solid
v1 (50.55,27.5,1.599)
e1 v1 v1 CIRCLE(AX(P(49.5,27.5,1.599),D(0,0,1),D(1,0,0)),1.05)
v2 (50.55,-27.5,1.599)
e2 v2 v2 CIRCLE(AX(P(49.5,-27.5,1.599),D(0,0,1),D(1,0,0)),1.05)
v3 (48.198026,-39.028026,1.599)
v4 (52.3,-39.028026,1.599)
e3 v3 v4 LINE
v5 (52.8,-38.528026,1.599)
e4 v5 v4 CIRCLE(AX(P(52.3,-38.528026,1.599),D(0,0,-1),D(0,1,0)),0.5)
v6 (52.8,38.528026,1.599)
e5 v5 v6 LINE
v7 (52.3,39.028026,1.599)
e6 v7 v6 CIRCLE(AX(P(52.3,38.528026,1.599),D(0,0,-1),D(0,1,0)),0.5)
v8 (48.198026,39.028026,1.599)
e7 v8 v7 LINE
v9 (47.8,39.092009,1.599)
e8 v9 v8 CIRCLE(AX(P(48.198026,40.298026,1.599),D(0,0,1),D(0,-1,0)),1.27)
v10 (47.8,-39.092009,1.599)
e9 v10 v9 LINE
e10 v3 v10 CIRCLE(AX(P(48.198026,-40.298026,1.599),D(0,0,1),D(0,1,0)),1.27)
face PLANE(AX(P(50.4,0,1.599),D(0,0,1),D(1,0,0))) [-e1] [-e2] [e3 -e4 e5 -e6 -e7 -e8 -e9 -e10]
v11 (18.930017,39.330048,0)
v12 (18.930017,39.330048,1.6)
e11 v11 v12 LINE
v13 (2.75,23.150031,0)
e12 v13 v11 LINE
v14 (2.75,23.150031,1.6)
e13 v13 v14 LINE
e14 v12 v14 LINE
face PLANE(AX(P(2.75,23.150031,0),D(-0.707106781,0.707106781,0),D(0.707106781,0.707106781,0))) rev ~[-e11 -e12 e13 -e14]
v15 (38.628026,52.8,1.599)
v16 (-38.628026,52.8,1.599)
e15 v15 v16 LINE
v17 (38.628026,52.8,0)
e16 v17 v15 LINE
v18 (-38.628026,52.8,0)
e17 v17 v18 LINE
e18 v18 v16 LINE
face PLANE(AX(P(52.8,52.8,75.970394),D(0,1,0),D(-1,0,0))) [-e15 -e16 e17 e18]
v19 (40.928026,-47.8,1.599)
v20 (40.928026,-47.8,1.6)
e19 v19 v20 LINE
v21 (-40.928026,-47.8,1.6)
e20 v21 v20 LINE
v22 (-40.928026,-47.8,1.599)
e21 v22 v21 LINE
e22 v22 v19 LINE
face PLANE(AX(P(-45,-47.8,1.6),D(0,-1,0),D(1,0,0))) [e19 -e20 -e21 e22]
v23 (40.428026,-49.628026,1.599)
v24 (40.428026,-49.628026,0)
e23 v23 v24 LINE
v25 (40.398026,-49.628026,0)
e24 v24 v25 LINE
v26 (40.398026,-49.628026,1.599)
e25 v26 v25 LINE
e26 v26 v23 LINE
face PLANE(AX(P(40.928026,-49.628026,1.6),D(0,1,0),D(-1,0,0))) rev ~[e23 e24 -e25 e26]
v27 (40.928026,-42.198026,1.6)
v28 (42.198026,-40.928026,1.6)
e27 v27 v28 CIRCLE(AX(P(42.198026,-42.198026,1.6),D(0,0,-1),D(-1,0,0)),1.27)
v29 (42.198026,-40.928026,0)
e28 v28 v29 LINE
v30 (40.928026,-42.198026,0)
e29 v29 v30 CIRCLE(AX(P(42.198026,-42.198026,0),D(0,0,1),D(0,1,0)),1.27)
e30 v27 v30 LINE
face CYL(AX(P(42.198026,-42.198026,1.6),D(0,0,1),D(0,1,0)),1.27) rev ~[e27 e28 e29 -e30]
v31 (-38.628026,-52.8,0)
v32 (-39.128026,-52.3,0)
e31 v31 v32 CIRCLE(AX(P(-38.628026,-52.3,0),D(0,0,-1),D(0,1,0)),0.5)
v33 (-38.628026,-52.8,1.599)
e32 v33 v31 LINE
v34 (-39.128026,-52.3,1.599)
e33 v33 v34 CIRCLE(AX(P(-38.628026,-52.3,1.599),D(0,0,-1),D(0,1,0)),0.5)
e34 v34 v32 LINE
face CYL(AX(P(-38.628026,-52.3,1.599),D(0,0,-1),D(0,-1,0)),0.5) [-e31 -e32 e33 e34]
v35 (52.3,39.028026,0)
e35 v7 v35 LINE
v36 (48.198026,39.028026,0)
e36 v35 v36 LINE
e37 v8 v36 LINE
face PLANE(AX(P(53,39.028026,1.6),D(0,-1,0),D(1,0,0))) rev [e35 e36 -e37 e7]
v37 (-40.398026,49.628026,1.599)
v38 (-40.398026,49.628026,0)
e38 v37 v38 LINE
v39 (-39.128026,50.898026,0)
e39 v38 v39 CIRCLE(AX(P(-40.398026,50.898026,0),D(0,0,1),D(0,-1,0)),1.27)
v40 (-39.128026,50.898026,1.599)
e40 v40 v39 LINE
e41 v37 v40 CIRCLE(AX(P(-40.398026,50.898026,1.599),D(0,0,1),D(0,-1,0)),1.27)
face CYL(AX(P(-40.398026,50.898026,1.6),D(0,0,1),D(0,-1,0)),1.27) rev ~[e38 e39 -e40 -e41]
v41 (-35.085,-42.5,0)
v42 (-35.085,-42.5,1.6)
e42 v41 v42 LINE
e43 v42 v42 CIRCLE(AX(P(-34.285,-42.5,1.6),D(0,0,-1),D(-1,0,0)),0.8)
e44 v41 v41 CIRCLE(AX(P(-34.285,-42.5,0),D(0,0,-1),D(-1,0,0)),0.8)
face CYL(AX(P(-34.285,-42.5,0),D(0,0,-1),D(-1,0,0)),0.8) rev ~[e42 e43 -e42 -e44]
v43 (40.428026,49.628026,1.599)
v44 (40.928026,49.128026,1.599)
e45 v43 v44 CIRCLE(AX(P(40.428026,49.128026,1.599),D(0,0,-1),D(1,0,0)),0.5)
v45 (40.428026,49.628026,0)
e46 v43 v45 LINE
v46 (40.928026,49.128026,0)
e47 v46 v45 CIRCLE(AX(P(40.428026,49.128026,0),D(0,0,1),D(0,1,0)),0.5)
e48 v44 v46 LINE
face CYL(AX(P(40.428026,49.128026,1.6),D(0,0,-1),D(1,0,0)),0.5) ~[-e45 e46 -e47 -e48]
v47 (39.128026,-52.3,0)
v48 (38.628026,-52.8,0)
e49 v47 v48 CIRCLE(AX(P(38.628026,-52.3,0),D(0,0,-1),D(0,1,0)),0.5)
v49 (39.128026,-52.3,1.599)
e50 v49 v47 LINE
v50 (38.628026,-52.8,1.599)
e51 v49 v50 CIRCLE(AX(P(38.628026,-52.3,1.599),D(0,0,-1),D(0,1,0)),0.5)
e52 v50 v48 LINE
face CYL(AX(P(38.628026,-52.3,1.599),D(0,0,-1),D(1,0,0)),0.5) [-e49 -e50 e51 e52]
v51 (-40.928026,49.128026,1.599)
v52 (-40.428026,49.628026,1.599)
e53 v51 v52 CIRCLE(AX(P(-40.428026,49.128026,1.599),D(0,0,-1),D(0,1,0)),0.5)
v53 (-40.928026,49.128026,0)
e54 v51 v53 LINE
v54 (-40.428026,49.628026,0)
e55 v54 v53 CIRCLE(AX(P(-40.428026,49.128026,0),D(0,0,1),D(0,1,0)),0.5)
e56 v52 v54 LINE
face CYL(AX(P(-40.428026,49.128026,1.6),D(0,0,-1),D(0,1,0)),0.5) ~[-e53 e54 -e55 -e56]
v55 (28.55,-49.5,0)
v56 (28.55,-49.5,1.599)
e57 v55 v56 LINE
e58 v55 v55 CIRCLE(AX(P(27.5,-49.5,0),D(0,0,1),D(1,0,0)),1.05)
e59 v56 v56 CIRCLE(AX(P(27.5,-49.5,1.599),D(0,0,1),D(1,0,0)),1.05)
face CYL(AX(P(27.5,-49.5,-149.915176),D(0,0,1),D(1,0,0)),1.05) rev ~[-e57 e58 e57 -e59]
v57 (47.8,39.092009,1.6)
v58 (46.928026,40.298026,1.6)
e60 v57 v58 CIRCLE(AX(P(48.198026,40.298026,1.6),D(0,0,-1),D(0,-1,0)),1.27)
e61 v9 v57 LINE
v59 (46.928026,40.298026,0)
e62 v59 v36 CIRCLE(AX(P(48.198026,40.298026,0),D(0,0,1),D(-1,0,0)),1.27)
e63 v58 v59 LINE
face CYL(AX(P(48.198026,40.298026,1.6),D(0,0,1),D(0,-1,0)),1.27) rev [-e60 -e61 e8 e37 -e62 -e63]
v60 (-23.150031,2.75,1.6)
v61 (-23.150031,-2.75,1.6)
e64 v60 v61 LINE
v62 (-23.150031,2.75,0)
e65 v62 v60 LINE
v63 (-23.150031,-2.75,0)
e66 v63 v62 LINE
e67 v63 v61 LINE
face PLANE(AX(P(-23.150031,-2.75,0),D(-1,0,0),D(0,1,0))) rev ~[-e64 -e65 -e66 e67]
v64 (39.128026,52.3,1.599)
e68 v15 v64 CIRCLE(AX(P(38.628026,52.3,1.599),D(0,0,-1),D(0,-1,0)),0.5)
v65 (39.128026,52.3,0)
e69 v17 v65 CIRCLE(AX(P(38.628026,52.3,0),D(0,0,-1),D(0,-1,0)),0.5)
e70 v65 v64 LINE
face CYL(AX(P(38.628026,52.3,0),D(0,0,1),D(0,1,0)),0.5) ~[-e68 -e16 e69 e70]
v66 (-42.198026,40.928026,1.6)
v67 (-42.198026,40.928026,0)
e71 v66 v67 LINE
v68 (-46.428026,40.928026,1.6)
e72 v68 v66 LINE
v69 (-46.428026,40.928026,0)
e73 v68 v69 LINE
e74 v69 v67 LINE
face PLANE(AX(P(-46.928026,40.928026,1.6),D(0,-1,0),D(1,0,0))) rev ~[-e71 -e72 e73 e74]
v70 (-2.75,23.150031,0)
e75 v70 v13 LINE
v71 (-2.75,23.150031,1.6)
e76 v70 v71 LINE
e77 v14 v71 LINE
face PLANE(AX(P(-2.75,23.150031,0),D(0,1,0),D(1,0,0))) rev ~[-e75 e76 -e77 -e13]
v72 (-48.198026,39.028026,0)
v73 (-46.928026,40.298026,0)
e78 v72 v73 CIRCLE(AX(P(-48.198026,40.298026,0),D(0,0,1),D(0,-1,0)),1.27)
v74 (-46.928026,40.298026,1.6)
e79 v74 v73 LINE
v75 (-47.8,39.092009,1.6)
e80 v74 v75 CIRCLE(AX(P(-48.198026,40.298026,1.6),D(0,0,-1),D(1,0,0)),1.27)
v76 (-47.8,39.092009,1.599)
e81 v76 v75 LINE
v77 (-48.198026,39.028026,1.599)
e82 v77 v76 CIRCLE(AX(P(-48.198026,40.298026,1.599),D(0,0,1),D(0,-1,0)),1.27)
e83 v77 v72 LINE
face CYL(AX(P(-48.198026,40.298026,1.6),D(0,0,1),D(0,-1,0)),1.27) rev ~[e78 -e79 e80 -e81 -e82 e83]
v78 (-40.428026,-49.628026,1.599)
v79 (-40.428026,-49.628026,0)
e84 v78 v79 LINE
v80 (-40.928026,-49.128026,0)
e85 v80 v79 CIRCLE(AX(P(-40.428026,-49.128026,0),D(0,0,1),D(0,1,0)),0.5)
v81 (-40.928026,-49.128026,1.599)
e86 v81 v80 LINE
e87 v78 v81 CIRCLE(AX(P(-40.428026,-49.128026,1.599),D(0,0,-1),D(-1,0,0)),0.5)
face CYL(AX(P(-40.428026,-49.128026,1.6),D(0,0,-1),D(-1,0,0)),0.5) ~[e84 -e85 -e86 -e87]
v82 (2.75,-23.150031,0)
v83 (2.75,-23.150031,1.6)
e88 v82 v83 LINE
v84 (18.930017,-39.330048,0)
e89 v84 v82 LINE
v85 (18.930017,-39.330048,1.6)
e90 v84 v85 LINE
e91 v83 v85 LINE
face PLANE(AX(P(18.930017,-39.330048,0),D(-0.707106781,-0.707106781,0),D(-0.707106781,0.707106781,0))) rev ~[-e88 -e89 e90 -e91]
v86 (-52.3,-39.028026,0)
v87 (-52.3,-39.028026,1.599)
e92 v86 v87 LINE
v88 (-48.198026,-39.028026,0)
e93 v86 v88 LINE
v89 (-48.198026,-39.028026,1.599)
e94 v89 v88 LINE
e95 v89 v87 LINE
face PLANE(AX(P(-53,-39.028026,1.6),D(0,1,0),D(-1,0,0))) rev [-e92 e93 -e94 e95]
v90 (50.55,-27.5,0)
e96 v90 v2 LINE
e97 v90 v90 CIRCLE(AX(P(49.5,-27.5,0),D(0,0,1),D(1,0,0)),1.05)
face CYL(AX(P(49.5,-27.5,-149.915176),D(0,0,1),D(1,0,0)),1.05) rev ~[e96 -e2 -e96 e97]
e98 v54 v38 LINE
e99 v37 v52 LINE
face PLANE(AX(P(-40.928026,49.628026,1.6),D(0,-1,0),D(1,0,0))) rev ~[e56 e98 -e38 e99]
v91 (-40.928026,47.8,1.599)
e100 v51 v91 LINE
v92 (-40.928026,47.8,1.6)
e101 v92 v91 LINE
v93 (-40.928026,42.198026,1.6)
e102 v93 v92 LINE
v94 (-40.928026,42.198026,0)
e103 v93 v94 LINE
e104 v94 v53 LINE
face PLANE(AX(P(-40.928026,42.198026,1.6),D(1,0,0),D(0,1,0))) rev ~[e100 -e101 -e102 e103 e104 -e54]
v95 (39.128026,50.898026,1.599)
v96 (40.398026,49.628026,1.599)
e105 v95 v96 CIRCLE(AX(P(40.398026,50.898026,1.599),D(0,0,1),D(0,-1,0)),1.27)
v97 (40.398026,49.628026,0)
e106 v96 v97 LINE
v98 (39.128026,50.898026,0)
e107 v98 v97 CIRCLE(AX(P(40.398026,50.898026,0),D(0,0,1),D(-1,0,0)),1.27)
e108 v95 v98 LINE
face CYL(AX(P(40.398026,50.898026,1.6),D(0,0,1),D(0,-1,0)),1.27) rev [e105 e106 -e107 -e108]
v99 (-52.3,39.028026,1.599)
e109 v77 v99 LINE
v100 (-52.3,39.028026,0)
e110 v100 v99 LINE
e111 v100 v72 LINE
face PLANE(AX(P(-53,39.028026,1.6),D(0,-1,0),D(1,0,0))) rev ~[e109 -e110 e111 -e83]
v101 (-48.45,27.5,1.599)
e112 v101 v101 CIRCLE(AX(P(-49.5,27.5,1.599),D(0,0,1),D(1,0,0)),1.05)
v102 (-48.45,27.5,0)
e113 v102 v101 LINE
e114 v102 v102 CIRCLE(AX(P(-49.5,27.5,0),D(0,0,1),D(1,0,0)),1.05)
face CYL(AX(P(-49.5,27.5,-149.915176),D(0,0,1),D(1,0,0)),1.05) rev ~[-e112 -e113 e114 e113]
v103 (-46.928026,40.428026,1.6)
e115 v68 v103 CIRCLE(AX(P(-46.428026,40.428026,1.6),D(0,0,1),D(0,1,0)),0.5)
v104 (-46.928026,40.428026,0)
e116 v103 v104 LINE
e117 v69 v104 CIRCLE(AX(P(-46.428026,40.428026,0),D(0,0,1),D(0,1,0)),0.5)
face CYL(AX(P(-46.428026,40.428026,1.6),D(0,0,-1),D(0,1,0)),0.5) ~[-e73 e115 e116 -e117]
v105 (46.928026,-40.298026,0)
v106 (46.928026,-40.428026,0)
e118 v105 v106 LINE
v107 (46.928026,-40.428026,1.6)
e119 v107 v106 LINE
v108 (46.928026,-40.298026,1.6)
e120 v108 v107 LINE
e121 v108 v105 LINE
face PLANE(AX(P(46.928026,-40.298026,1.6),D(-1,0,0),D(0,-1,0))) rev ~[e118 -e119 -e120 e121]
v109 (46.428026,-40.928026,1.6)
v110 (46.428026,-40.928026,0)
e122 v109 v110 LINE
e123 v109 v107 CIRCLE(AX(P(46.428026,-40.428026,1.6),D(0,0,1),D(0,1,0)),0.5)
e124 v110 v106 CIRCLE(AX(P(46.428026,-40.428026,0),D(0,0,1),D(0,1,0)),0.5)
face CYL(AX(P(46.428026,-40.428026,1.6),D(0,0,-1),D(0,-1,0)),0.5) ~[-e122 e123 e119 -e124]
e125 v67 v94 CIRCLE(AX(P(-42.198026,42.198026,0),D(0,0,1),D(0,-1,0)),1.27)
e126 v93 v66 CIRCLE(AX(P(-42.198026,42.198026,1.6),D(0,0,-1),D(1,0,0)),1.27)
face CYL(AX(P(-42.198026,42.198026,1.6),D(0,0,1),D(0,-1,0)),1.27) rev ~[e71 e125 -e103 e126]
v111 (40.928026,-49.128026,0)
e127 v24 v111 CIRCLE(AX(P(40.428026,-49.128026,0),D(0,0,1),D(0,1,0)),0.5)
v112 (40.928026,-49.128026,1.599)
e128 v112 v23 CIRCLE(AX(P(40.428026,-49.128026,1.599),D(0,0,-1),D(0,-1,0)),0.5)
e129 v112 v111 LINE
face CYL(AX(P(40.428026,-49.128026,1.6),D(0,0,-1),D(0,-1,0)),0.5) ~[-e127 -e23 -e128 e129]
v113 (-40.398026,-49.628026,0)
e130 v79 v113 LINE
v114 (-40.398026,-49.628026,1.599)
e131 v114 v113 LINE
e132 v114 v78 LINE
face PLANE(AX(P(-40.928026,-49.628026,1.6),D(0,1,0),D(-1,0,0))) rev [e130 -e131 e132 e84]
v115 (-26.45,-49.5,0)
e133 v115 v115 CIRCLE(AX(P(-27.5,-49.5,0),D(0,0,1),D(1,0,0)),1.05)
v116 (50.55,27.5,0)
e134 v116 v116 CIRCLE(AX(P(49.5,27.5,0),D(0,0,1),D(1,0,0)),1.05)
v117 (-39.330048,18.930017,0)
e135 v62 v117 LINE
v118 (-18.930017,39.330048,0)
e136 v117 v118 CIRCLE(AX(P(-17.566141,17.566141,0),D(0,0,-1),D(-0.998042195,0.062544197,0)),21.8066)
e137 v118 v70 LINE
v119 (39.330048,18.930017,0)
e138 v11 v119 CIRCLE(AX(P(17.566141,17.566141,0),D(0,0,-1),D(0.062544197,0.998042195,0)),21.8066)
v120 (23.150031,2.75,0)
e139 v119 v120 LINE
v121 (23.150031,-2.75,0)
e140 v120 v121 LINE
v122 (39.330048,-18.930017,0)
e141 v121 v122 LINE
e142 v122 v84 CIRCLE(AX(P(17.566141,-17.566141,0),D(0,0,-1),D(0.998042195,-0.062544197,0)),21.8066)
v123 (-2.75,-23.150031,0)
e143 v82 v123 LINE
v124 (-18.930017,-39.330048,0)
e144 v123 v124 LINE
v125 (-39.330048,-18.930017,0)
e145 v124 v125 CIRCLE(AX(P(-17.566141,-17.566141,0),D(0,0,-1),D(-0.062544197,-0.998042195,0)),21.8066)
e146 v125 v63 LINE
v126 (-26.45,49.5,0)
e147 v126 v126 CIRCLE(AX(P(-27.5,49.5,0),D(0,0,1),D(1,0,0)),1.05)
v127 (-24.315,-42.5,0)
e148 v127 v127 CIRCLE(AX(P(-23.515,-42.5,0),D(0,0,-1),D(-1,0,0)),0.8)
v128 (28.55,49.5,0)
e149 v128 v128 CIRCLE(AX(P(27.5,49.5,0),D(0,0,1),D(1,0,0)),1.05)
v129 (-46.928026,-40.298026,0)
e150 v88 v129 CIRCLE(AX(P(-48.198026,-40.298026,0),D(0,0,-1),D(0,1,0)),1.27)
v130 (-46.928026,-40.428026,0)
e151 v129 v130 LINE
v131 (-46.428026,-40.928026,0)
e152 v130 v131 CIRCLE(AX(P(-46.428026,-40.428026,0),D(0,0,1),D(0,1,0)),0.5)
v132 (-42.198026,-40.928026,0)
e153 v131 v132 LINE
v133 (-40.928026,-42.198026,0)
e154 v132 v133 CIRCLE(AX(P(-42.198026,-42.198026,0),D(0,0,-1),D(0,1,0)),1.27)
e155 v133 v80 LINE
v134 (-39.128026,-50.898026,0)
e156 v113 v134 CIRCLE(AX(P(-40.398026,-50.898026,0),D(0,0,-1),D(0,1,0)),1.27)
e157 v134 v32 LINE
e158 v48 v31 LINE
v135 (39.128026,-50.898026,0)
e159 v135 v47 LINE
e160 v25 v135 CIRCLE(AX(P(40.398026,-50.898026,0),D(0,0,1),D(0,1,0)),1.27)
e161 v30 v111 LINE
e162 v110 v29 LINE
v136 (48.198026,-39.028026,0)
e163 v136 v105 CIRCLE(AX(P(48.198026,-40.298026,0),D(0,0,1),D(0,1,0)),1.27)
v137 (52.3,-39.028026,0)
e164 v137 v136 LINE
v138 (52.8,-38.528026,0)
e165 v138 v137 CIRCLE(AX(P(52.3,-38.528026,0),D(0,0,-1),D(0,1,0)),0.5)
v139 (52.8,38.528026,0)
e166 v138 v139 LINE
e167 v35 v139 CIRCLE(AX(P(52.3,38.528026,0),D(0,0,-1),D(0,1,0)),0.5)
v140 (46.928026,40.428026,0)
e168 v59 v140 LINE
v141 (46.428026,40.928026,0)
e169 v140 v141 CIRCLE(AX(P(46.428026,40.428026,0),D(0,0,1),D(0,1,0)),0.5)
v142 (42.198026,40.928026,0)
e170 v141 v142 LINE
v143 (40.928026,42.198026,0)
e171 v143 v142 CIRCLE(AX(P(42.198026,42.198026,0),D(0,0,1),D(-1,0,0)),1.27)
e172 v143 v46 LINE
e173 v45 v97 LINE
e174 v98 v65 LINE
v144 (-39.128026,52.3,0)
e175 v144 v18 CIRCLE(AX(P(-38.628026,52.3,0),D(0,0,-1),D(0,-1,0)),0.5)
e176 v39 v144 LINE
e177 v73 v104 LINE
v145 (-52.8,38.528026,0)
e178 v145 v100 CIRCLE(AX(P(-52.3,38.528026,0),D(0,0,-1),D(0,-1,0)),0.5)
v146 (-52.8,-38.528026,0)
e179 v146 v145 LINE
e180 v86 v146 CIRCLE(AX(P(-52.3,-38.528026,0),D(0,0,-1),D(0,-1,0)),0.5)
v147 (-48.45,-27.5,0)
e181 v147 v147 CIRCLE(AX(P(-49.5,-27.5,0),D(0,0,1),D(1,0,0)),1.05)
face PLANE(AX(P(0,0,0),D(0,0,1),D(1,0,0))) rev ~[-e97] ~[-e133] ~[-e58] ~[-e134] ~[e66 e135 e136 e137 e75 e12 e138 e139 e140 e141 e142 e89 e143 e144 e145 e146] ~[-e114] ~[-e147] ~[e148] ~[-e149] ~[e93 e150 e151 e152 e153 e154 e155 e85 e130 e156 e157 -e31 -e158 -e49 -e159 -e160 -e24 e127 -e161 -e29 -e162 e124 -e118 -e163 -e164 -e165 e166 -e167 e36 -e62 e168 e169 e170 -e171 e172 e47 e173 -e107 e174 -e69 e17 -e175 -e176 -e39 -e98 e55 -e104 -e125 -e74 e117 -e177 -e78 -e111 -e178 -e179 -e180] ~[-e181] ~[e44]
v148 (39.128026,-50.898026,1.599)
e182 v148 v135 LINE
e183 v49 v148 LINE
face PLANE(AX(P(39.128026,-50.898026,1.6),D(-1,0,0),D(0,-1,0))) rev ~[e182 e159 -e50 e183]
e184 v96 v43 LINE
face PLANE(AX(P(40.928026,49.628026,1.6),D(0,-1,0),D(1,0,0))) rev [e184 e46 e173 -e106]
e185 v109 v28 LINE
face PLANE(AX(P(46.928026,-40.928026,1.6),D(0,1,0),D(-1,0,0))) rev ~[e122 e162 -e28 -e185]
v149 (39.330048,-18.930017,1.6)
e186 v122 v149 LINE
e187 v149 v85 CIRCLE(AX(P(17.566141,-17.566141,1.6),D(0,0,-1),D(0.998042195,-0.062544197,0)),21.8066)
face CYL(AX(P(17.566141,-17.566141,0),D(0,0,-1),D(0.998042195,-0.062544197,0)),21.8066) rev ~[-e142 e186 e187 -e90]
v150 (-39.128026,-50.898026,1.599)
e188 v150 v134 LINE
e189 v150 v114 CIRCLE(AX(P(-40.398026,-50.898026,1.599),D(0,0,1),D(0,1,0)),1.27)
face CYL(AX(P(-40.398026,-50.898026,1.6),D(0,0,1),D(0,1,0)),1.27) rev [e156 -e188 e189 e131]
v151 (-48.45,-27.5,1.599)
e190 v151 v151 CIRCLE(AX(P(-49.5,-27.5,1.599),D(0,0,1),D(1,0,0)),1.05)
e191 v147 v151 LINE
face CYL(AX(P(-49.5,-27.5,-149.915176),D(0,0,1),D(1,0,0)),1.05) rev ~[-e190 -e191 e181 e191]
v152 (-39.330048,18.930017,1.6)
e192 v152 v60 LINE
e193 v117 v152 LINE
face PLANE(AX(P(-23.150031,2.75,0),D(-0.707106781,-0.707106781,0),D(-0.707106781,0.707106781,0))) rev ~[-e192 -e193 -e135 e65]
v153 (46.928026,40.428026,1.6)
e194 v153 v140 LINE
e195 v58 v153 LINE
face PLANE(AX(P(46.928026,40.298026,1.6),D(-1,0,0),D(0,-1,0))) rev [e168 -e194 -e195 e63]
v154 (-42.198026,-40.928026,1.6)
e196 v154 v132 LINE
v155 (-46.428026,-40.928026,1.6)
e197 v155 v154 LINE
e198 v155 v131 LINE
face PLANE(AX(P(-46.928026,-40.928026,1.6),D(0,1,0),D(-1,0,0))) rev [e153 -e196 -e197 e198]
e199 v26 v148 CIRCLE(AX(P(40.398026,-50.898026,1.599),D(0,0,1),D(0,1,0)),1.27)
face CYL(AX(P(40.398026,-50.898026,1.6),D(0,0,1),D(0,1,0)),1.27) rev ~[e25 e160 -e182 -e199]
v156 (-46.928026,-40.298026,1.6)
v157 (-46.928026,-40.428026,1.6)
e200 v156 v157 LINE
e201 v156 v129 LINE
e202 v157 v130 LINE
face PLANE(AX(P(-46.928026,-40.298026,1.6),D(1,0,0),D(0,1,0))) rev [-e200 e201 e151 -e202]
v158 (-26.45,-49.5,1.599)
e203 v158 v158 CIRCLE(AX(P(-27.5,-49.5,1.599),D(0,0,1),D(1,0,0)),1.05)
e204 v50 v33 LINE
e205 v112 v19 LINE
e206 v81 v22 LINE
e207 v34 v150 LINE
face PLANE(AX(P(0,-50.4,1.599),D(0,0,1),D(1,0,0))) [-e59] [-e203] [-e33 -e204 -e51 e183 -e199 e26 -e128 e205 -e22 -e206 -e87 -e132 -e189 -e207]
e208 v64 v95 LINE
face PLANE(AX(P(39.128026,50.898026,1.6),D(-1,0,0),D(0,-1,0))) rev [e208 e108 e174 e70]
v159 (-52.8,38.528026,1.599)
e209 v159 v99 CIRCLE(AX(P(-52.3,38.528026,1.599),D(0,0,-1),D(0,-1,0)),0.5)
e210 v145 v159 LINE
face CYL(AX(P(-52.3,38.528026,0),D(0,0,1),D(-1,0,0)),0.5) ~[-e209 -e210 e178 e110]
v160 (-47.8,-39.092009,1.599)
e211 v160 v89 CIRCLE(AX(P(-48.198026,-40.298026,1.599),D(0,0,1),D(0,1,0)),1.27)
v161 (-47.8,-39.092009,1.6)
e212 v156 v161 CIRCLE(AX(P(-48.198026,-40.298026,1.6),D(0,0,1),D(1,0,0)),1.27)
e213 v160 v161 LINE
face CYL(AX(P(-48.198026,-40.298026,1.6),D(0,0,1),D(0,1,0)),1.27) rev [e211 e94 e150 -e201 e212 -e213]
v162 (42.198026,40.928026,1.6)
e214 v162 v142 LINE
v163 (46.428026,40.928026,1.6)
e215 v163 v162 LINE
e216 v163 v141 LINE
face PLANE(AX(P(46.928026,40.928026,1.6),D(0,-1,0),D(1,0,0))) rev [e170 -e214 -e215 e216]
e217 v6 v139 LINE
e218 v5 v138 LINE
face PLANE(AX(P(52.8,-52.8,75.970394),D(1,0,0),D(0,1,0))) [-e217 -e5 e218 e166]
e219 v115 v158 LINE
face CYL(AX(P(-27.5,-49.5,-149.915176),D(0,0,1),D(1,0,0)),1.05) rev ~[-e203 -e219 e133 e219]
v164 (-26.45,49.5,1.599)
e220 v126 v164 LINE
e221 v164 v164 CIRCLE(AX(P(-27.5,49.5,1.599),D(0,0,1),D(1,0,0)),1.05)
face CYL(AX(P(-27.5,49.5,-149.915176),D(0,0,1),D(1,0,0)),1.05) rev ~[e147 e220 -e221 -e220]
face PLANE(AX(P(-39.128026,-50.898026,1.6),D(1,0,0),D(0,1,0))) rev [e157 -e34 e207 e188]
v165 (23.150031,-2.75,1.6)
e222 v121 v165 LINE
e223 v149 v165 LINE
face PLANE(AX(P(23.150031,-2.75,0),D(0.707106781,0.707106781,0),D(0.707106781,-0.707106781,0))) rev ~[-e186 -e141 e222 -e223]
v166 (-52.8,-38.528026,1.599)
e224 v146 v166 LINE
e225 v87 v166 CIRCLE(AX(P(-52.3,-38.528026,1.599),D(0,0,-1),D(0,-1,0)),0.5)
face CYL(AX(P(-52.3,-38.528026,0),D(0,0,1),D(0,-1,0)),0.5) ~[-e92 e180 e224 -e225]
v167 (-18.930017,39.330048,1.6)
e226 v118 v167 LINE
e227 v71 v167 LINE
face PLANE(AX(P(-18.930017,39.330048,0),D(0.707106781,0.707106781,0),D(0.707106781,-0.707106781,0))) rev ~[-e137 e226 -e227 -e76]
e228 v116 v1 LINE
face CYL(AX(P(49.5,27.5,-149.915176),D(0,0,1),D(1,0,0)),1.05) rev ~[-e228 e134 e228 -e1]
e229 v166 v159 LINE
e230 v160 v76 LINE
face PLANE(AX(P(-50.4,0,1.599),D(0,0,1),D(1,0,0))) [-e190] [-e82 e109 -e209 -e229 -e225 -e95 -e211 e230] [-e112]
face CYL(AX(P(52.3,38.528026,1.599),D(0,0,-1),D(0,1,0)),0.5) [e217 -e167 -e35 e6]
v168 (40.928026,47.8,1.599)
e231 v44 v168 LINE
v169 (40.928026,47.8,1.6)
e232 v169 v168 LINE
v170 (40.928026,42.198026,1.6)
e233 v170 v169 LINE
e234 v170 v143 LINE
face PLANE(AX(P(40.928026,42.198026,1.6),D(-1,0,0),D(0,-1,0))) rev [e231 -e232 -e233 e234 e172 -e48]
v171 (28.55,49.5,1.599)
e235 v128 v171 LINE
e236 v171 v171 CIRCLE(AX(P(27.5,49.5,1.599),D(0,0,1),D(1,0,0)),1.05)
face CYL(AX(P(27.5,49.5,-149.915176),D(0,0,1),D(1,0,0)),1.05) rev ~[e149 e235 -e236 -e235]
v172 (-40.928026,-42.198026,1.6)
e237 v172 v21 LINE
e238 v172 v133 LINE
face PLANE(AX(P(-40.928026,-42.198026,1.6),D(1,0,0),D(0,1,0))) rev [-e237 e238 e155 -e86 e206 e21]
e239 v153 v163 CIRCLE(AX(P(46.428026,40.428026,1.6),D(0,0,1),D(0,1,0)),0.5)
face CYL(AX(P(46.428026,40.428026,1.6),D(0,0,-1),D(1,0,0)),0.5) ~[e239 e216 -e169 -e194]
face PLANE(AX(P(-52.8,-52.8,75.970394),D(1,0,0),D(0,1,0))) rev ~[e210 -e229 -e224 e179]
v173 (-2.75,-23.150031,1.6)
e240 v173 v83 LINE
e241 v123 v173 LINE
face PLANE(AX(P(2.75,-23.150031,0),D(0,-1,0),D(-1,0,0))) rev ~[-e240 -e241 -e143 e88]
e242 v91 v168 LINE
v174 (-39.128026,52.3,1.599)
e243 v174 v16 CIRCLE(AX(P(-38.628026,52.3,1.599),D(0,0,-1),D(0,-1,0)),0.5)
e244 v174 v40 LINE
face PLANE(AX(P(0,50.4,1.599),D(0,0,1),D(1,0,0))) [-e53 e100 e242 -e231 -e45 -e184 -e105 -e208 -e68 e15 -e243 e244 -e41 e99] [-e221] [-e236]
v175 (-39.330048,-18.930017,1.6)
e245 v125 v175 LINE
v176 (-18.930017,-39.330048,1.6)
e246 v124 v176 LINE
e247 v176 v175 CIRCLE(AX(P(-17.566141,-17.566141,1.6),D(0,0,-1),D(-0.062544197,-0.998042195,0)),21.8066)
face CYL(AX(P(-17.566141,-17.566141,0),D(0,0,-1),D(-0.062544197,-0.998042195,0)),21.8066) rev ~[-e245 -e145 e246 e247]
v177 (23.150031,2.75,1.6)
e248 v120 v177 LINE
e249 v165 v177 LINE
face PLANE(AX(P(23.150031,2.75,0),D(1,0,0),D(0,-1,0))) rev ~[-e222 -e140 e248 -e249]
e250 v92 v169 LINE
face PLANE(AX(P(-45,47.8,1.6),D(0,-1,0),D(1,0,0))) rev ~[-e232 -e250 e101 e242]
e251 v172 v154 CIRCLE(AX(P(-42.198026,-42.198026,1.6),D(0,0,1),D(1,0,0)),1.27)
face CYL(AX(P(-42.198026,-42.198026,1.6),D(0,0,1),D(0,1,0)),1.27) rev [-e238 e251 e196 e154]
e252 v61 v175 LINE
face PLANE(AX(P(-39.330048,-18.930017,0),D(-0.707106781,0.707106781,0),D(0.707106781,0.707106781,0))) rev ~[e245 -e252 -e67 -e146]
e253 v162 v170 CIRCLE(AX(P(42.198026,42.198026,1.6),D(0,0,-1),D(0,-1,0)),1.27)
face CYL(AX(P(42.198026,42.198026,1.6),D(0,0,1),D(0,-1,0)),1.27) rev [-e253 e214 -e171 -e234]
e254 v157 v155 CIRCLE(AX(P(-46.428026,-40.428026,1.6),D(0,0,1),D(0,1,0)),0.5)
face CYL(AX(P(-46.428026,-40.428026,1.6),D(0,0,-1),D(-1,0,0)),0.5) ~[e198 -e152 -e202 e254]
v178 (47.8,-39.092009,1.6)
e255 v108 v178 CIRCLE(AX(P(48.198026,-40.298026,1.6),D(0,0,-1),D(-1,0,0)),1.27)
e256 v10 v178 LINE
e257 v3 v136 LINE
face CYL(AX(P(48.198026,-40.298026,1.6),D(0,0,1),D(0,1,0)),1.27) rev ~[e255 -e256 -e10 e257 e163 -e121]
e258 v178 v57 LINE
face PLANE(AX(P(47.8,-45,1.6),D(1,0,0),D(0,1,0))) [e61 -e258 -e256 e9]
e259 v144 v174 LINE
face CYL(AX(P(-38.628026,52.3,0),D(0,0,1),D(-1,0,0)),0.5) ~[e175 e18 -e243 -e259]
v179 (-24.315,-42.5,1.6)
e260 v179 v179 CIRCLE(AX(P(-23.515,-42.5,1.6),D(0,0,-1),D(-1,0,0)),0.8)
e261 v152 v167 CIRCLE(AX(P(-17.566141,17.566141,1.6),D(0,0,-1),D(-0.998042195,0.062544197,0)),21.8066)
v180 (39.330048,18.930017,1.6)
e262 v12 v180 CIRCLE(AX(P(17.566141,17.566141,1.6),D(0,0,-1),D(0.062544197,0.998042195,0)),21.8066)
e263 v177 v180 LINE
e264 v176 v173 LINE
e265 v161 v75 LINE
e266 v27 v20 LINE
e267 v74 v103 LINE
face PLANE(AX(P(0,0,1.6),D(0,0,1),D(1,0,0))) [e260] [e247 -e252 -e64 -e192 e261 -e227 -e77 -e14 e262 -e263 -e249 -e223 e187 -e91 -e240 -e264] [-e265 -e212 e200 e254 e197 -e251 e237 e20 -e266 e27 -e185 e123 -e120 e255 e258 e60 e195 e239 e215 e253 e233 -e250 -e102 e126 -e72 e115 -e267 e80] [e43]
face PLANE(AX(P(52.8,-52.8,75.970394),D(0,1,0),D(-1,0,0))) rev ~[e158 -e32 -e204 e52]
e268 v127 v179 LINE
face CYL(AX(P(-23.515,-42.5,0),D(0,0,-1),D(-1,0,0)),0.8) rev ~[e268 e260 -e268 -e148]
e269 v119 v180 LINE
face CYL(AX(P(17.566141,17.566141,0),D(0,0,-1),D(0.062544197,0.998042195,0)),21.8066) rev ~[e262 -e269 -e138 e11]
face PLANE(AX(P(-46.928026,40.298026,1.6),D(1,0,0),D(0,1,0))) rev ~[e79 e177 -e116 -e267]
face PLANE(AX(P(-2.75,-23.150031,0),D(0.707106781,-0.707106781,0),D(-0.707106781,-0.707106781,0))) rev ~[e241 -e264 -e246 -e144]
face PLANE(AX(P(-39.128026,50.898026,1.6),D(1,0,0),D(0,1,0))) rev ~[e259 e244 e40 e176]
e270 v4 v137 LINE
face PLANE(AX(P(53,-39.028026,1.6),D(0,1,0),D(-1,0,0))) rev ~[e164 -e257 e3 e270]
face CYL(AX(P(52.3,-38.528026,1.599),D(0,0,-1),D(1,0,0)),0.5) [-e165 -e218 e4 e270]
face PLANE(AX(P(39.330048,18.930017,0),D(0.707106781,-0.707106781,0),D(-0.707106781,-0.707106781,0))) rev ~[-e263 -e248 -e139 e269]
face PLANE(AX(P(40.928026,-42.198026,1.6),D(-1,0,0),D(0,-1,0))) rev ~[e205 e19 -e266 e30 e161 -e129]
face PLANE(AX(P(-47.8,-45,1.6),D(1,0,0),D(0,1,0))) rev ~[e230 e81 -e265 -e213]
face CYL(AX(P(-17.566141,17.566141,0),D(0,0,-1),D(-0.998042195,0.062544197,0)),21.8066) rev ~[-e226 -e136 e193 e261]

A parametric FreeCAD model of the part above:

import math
import FreeCAD as App
import Part
import Sketcher

V = App.Vector
Q = App.Units.Quantity


def edges_at(feature, points):
    """Names of the edges that pass closest to the given points."""
    edges = feature.Shape.Edges
    near = lambda p: min(range(len(edges)), key=lambda i: edges[i].distToShape(Part.Vertex(*p))[0])
    return sorted({f"Edge{near(p) + 1}" for p in points})


def add_polygon(sketch, points):
    """Adds a closed chain of lines whose ends are joined by coincident constraints."""
    first, n = sketch.GeometryCount, len(points)
    for a, b in zip(points, points[1:] + points[:1]):
        sketch.addGeometry(Part.LineSegment(App.Vector(*a, 0), App.Vector(*b, 0)), False)
    for i in range(n):
        sketch.addConstraint(Sketcher.Constraint("Coincident", first + i, 2, first + (i + 1) % n, 1))

doc = App.newDocument("Part")
body = doc.addObject("PartDesign::Body", "Body")

sketch1 = body.newObject("Sketcher::SketchObject", "Sketch")
sketch1.AttachmentSupport = (doc.getObject("XY_Plane"), [""])
sketch1.MapMode = "FlatFace"
add_polygon(sketch1, [(-53, 53), (-53, -53), (53, -53), (53, 53)])
sketch1.addConstraint([
    Sketcher.Constraint("Vertical", 0),
    Sketcher.Constraint("Horizontal", 1),
    Sketcher.Constraint("Vertical", 2),
    Sketcher.Constraint("Horizontal", 3),
    Sketcher.Constraint("Symmetric", 0, 2, 2, 2, -1, 1),
    Sketcher.Constraint("Equal", 3, 0),
    Sketcher.Constraint("DistanceX", 1, 1, 1, 2, Q("106 mm")),
])
pad1 = body.newObject("PartDesign::Pad", "Pad")
pad1.Profile = sketch1
pad1.Length = 1.6

sketch2 = body.newObject("Sketcher::SketchObject", "Sketch001")
sketch2.AttachmentSupport = (doc.getObject("XY_Plane"), [""])
sketch2.MapMode = "FlatFace"
add_polygon(sketch2, [(-41, 53), (-41, 41), (-53, 41), (-53, 53)])
sketch2.addConstraint([
    Sketcher.Constraint("Vertical", 0),
    Sketcher.Constraint("Horizontal", 1),
    Sketcher.Constraint("Vertical", 2),
    Sketcher.Constraint("Horizontal", 3),
    Sketcher.Constraint("Equal", 3, 0),
    Sketcher.Constraint("DistanceX", 1, 2, 1, 1, Q("11.7 mm")),
    Sketcher.Constraint("DistanceX", 1, 2, -1, 1, Q("53 mm")),
    Sketcher.Constraint("DistanceY", -1, 1, 2, 2, Q("53 mm")),
])
pocket1 = body.newObject("PartDesign::Pocket", "Pocket")
pocket1.Profile = sketch2
pocket1.Type = "ThroughAll"
pocket1.Reversed = True

sketch3 = body.newObject("Sketcher::SketchObject", "Sketch002")
sketch3.AttachmentSupport = (doc.getObject("XY_Plane"), [""])
sketch3.MapMode = "FlatFace"
add_polygon(sketch3, [(-47.3, 41.3), (-47.3, 39.4), (-53, 39.4), (-53, 41.3)])
add_polygon(sketch3, [(-39.5, 53), (-39.5, 50), (-41.3, 50), (-41.3, 53)])
sketch3.addConstraint([
    Sketcher.Constraint("Vertical", 0),
    Sketcher.Constraint("Horizontal", 1),
    Sketcher.Constraint("Vertical", 2),
    Sketcher.Constraint("Horizontal", 3),
    Sketcher.Constraint("Vertical", 4),
    Sketcher.Constraint("Horizontal", 5),
    Sketcher.Constraint("Vertical", 6),
    Sketcher.Constraint("Horizontal", 7),
    Sketcher.Constraint("DistanceY", 4, 2, 4, 1, Q("3 mm")),
    Sketcher.Constraint("DistanceX", 1, 2, 1, 1, Q("5.7 mm")),
    Sketcher.Constraint("DistanceX", 5, 2, 5, 1, Q("1.8 mm")),
    Sketcher.Constraint("DistanceY", 0, 2, 0, 1, Q("1.9 mm")),
    Sketcher.Constraint("DistanceX", 1, 2, -1, 1, Q("53 mm")),
    Sketcher.Constraint("DistanceY", -1, 1, 4, 2, Q("50 mm")),
    Sketcher.Constraint("DistanceX", 3, 2, 5, 2, Q("6 mm")),
    Sketcher.Constraint("DistanceY", -1, 1, 0, 2, Q("39.4 mm")),
])
pocket2 = body.newObject("PartDesign::Pocket", "Pocket001")
pocket2.Profile = sketch3
pocket2.Length = 151.940788
pocket2.Midplane = True

sketch4 = body.newObject("Sketcher::SketchObject", "Sketch003")
sketch4.AttachmentSupport = (doc.getObject("XY_Plane"), [""])
sketch4.MapMode = "FlatFace"
sketch4.AttachmentOffset = App.Placement(V(0, 0, 1.6), App.Rotation())
sketch4.addGeometry([
    Part.LineSegment(V(-40.9, 42.2, 0), V(-40.9, 49.6, 0)),
    Part.LineSegment(V(-40.9, 49.6, 0), V(-40.4, 49.6, 0)),
    Part.ArcOfCircle(Part.Circle(V(-40.4, 50.9, 0), V(0, 0, 1), 1.3), math.radians(-90), math.radians(0)),
    Part.LineSegment(V(-39.1, 50.9, 0), V(-39.1, 53, 0)),
    Part.LineSegment(V(-39.1, 53, 0), V(-53, 53, 0)),
    Part.LineSegment(V(-53, 53, 0), V(-53, 39, 0)),
    Part.LineSegment(V(-53, 39, 0), V(-48.2, 39, 0)),
    Part.ArcOfCircle(Part.Circle(V(-48.2, 40.3, 0), V(0, 0, 1), 1.3), math.radians(-90), math.radians(0)),
    Part.LineSegment(V(-46.9, 40.3, 0), V(-46.9, 40.9, 0)),
    Part.LineSegment(V(-46.9, 40.9, 0), V(-42.2, 40.9, 0)),
    Part.ArcOfCircle(Part.Circle(V(-42.2, 42.2, 0), V(0, 0, 1), 1.3), math.radians(-90), math.radians(0)),
], False)
sketch4.addConstraint([
    Sketcher.Constraint("Coincident", 0, 2, 1, 1),
    Sketcher.Constraint("Tangent", 1, 2, 2, 1),
    Sketcher.Constraint("Tangent", 2, 2, 3, 1),
    Sketcher.Constraint("Coincident", 3, 2, 4, 1),
    Sketcher.Constraint("Coincident", 4, 2, 5, 1),
    Sketcher.Constraint("Coincident", 5, 2, 6, 1),
    Sketcher.Constraint("Tangent", 6, 2, 7, 1),
    Sketcher.Constraint("Tangent", 7, 2, 8, 1),
    Sketcher.Constraint("Coincident", 8, 2, 9, 1),
    Sketcher.Constraint("Tangent", 9, 2, 10, 1),
    Sketcher.Constraint("Tangent", 10, 2, 0, 1),
    Sketcher.Constraint("Vertical", 0),
    Sketcher.Constraint("Horizontal", 1),
    Sketcher.Constraint("Vertical", 3),
    Sketcher.Constraint("Horizontal", 4),
    Sketcher.Constraint("Vertical", 5),
    Sketcher.Constraint("Horizontal", 6),
    Sketcher.Constraint("Vertical", 8),
    Sketcher.Constraint("Horizontal", 9),
    Sketcher.Constraint("Equal", 2, 7),
    Sketcher.Constraint("Equal", 7, 10),
    Sketcher.Constraint("Radius", 2, Q("1.27 mm")),
    Sketcher.Constraint("DistanceY", -1, 1, 3, 2, Q("53 mm")),
    Sketcher.Constraint("DistanceX", 4, 2, -1, 1, Q("53 mm")),
    Sketcher.Constraint("DistanceX", 7, 3, 10, 3, Q("6 mm")),
    Sketcher.Constraint("DistanceX", 1, 1, 1, 2, Q("0.53 mm")),
    Sketcher.Constraint("DistanceY", 0, 1, 0, 2, Q("7.43 mm")),
    Sketcher.Constraint("DistanceY", 8, 1, 8, 2, Q("0.63 mm")),
    Sketcher.Constraint("DistanceX", 4, 2, 4, 1, Q("13.871974 mm")),
    Sketcher.Constraint("DistanceY", 3, 1, 3, 2, Q("2.101974 mm")),
])
pocket3 = body.newObject("PartDesign::Pocket", "Pocket002")
pocket3.Profile = sketch4
pocket3.Length = 10
doc.recompute()

mirrored = body.newObject("PartDesign::Mirrored", "Mirrored")
mirrored.Originals = [pocket1, pocket2, pocket3]
mirrored.MirrorPlane = (doc.getObject("YZ_Plane"), [""])
body.Tip = mirrored
doc.recompute()

mirrored2 = body.newObject("PartDesign::Mirrored", "Mirrored001")
mirrored2.Originals = [pocket3]
mirrored2.MirrorPlane = (doc.getObject("XZ_Plane"), [""])
body.Tip = mirrored2

sketch5 = body.newObject("Sketcher::SketchObject", "Sketch004")
sketch5.AttachmentSupport = (doc.getObject("XY_Plane"), [""])
sketch5.MapMode = "FlatFace"
add_polygon(sketch5, [(41, -53), (41, -41), (53, -41), (53, -53)])
sketch5.addConstraint([
    Sketcher.Constraint("Vertical", 0),
    Sketcher.Constraint("Horizontal", 1),
    Sketcher.Constraint("Vertical", 2),
    Sketcher.Constraint("Horizontal", 3),
    Sketcher.Constraint("Equal", 3, 0),
    Sketcher.Constraint("DistanceX", 1, 1, 1, 2, Q("11.7 mm")),
    Sketcher.Constraint("DistanceX", -1, 1, 1, 2, Q("53 mm")),
    Sketcher.Constraint("DistanceY", 2, 2, -1, 1, Q("53 mm")),
])
pocket4 = body.newObject("PartDesign::Pocket", "Pocket003")
pocket4.Profile = sketch5
pocket4.Type = "ThroughAll"
pocket4.Reversed = True

sketch6 = body.newObject("Sketcher::SketchObject", "Sketch005")
sketch6.AttachmentSupport = (doc.getObject("XY_Plane"), [""])
sketch6.MapMode = "FlatFace"
add_polygon(sketch6, [(47.3, -41.3), (47.3, -39.4), (53, -39.4), (53, -41.3)])
add_polygon(sketch6, [(39.5, -53), (39.5, -50), (41.3, -50), (41.3, -53)])
sketch6.addConstraint([
    Sketcher.Constraint("Vertical", 0),
    Sketcher.Constraint("Horizontal", 1),
    Sketcher.Constraint("Vertical", 2),
    Sketcher.Constraint("Horizontal", 3),
    Sketcher.Constraint("Vertical", 4),
    Sketcher.Constraint("Horizontal", 5),
    Sketcher.Constraint("Vertical", 6),
    Sketcher.Constraint("Horizontal", 7),
    Sketcher.Constraint("DistanceY", 4, 1, 4, 2, Q("3 mm")),
    Sketcher.Constraint("DistanceX", 1, 1, 1, 2, Q("5.7 mm")),
    Sketcher.Constraint("DistanceX", 5, 1, 5, 2, Q("1.8 mm")),
    Sketcher.Constraint("DistanceY", 0, 1, 0, 2, Q("1.9 mm")),
    Sketcher.Constraint("DistanceX", -1, 1, 1, 2, Q("53 mm")),
    Sketcher.Constraint("DistanceY", 4, 2, -1, 1, Q("50 mm")),
    Sketcher.Constraint("DistanceX", 5, 2, 3, 2, Q("6 mm")),
    Sketcher.Constraint("DistanceY", 0, 2, -1, 1, Q("39.4 mm")),
])
pocket5 = body.newObject("PartDesign::Pocket", "Pocket004")
pocket5.Profile = sketch6
pocket5.Length = 151.940788
pocket5.Midplane = True

sketch7 = body.newObject("Sketcher::SketchObject", "Sketch006")
sketch7.AttachmentSupport = (doc.getObject("XY_Plane"), [""])
sketch7.MapMode = "FlatFace"
sketch7.AttachmentOffset = App.Placement(V(0, 0, 1.6), App.Rotation())
sketch7.addGeometry([
    Part.LineSegment(V(40.9, -42.2, 0), V(40.9, -49.6, 0)),
    Part.LineSegment(V(40.9, -49.6, 0), V(40.4, -49.6, 0)),
    Part.ArcOfCircle(Part.Circle(V(40.4, -50.9, 0), V(0, 0, 1), 1.3), math.radians(90), math.radians(180)),
    Part.LineSegment(V(39.1, -50.9, 0), V(39.1, -53, 0)),
    Part.LineSegment(V(39.1, -53, 0), V(53, -53, 0)),
    Part.LineSegment(V(53, -53, 0), V(53, -39, 0)),
    Part.LineSegment(V(53, -39, 0), V(48.2, -39, 0)),
    Part.ArcOfCircle(Part.Circle(V(48.2, -40.3, 0), V(0, 0, 1), 1.3), math.radians(90), math.radians(180)),
    Part.LineSegment(V(46.9, -40.3, 0), V(46.9, -40.9, 0)),
    Part.LineSegment(V(46.9, -40.9, 0), V(42.2, -40.9, 0)),
    Part.ArcOfCircle(Part.Circle(V(42.2, -42.2, 0), V(0, 0, 1), 1.3), math.radians(90), math.radians(180)),
], False)
sketch7.addConstraint([
    Sketcher.Constraint("Coincident", 0, 2, 1, 1),
    Sketcher.Constraint("Tangent", 1, 2, 2, 1),
    Sketcher.Constraint("Tangent", 2, 2, 3, 1),
    Sketcher.Constraint("Coincident", 3, 2, 4, 1),
    Sketcher.Constraint("Coincident", 4, 2, 5, 1),
    Sketcher.Constraint("Coincident", 5, 2, 6, 1),
    Sketcher.Constraint("Tangent", 6, 2, 7, 1),
    Sketcher.Constraint("Tangent", 7, 2, 8, 1),
    Sketcher.Constraint("Coincident", 8, 2, 9, 1),
    Sketcher.Constraint("Tangent", 9, 2, 10, 1),
    Sketcher.Constraint("Tangent", 10, 2, 0, 1),
    Sketcher.Constraint("Vertical", 0),
    Sketcher.Constraint("Horizontal", 1),
    Sketcher.Constraint("Vertical", 3),
    Sketcher.Constraint("Horizontal", 4),
    Sketcher.Constraint("Vertical", 5),
    Sketcher.Constraint("Horizontal", 6),
    Sketcher.Constraint("Vertical", 8),
    Sketcher.Constraint("Horizontal", 9),
    Sketcher.Constraint("Equal", 2, 7),
    Sketcher.Constraint("Equal", 7, 10),
    Sketcher.Constraint("Radius", 2, Q("1.27 mm")),
    Sketcher.Constraint("DistanceY", 3, 2, -1, 1, Q("53 mm")),
    Sketcher.Constraint("DistanceX", -1, 1, 4, 2, Q("53 mm")),
    Sketcher.Constraint("DistanceX", 10, 3, 7, 3, Q("6 mm")),
    Sketcher.Constraint("DistanceX", 1, 2, 1, 1, Q("0.53 mm")),
    Sketcher.Constraint("DistanceY", 0, 2, 0, 1, Q("7.43 mm")),
    Sketcher.Constraint("DistanceY", 8, 2, 8, 1, Q("0.63 mm")),
    Sketcher.Constraint("DistanceX", 4, 1, 4, 2, Q("13.871974 mm")),
    Sketcher.Constraint("DistanceY", 3, 2, 3, 1, Q("2.101974 mm")),
])
pocket6 = body.newObject("PartDesign::Pocket", "Pocket005")
pocket6.Profile = sketch7
pocket6.Length = 10

sketch8 = body.newObject("Sketcher::SketchObject", "Sketch007")
sketch8.AttachmentSupport = (doc.getObject("XY_Plane"), [""])
sketch8.MapMode = "FlatFace"
add_polygon(sketch8, [(-41, -41), (-41, -53), (-53, -53), (-53, -41)])
sketch8.addConstraint([
    Sketcher.Constraint("Vertical", 0),
    Sketcher.Constraint("Horizontal", 1),
    Sketcher.Constraint("Vertical", 2),
    Sketcher.Constraint("Horizontal", 3),
    Sketcher.Constraint("Equal", 3, 0),
    Sketcher.Constraint("DistanceX", 1, 2, 1, 1, Q("11.7 mm")),
    Sketcher.Constraint("DistanceY", 0, 2, -1, 1, Q("53 mm")),
    Sketcher.Constraint("DistanceX", 1, 2, -1, 1, Q("53 mm")),
])
pocket7 = body.newObject("PartDesign::Pocket", "Pocket006")
pocket7.Profile = sketch8
pocket7.Type = "ThroughAll"
pocket7.Reversed = True

sketch9 = body.newObject("Sketcher::SketchObject", "Sketch008")
sketch9.AttachmentSupport = (doc.getObject("XY_Plane"), [""])
sketch9.MapMode = "FlatFace"
add_polygon(sketch9, [(-47.3, -39.4), (-47.3, -41.3), (-53, -41.3), (-53, -39.4)])
add_polygon(sketch9, [(-39.5, -50), (-39.5, -53), (-41.3, -53), (-41.3, -50)])
sketch9.addConstraint([
    Sketcher.Constraint("Vertical", 0),
    Sketcher.Constraint("Horizontal", 1),
    Sketcher.Constraint("Vertical", 2),
    Sketcher.Constraint("Horizontal", 3),
    Sketcher.Constraint("Vertical", 4),
    Sketcher.Constraint("Horizontal", 5),
    Sketcher.Constraint("Vertical", 6),
    Sketcher.Constraint("Horizontal", 7),
    Sketcher.Constraint("DistanceY", 4, 2, 4, 1, Q("3 mm")),
    Sketcher.Constraint("DistanceX", 1, 2, 1, 1, Q("5.7 mm")),
    Sketcher.Constraint("DistanceX", 5, 2, 5, 1, Q("1.8 mm")),
    Sketcher.Constraint("DistanceY", 0, 2, 0, 1, Q("1.9 mm")),
    Sketcher.Constraint("DistanceX", 1, 2, -1, 1, Q("53 mm")),
    Sketcher.Constraint("DistanceY", 4, 2, -1, 1, Q("53 mm")),
    Sketcher.Constraint("DistanceX", 0, 2, 5, 2, Q("6 mm")),
    Sketcher.Constraint("DistanceY", 0, 2, -1, 1, Q("41.3 mm")),
])
pocket8 = body.newObject("PartDesign::Pocket", "Pocket007")
pocket8.Profile = sketch9
pocket8.Length = 151.940788
pocket8.Midplane = True
doc.recompute()

fillet = body.newObject("PartDesign::Fillet", "Fillet")
fillet.Base = (pocket8, edges_at(pocket8, [
    (40.928, 49.628, 0.8),
    (46.928, 40.928, 0.8),
    (46.928, -40.928, 0.8),
    (40.928, -49.628, 0.8),
    (-40.928, -49.628, 0.8),
    (-46.928, -40.928, 0.8),
    (-46.928, 40.928, 0.8),
    (-40.928, 49.628, 0.8),
]))
fillet.Radius = 0.5

sketch10 = body.newObject("Sketcher::SketchObject", "Sketch009")
sketch10.AttachmentSupport = (doc.getObject("XY_Plane"), [""])
sketch10.MapMode = "FlatFace"
sketch10.addGeometry([
    Part.Circle(V(-49.5, -27.5, 0), V(0, 0, 1), 1.1),
    Part.Circle(V(-27.5, -49.5, 0), V(0, 0, 1), 1.1),
    Part.Circle(V(49.5, -27.5, 0), V(0, 0, 1), 1.1),
    Part.Circle(V(27.5, -49.5, 0), V(0, 0, 1), 1.1),
    Part.Circle(V(27.5, 49.5, 0), V(0, 0, 1), 1.1),
    Part.Circle(V(49.5, 27.5, 0), V(0, 0, 1), 1.1),
    Part.Circle(V(-27.5, 49.5, 0), V(0, 0, 1), 1.1),
    Part.Circle(V(-49.5, 27.5, 0), V(0, 0, 1), 1.1),
], False)
sketch10.addConstraint([
    Sketcher.Constraint("Equal", 0, 1),
    Sketcher.Constraint("Equal", 1, 2),
    Sketcher.Constraint("Equal", 2, 3),
    Sketcher.Constraint("Equal", 3, 4),
    Sketcher.Constraint("Equal", 4, 5),
    Sketcher.Constraint("Equal", 5, 6),
    Sketcher.Constraint("Equal", 6, 7),
    Sketcher.Constraint("Symmetric", 1, 3, 4, 3, -1, 1),
    Sketcher.Constraint("Symmetric", 0, 3, 5, 3, -1, 1),
    Sketcher.Constraint("Symmetric", 3, 3, 6, 3, -1, 1),
    Sketcher.Constraint("Symmetric", 2, 3, 7, 3, -1, 1),
    Sketcher.Constraint("Symmetric", 0, 3, 2, 3, -2),
    Sketcher.Constraint("Symmetric", 1, 3, 3, 3, -2),
    Sketcher.Constraint("Diameter", 0, Q("2.1 mm")),
    Sketcher.Constraint("DistanceX", 0, 3, 1, 3, Q("22 mm")),
    Sketcher.Constraint("DistanceY", 1, 3, 0, 3, Q("22 mm")),
    Sketcher.Constraint("DistanceX", 1, 3, 2, 3, Q("77 mm")),
    Sketcher.Constraint("DistanceY", 2, 3, 4, 3, Q("77 mm")),
])
doc.recompute()
hole = body.newObject("PartDesign::Hole", "Hole")
hole.Profile = sketch10
hole.ThreadType = "None"
hole.Diameter = 2.1
hole.DepthType = "ThroughAll"
hole.Reversed = True

sketch11 = body.newObject("Sketcher::SketchObject", "Sketch010")
sketch11.AttachmentSupport = (doc.getObject("XY_Plane"), [""])
sketch11.MapMode = "FlatFace"
sketch11.AttachmentOffset = App.Placement(V(0, 0, 1.6), App.Rotation())
add_polygon(sketch11, [(-45, -48), (-45, -53), (45, -53), (45, -48)])
add_polygon(sketch11, [(-45, 53), (-45, 48), (45, 48), (45, 53)])
add_polygon(sketch11, [(-53, 45), (-53, -45), (-48, -45), (-48, 45)])
add_polygon(sketch11, [(48, 45), (48, -45), (53, -45), (53, 45)])
sketch11.addConstraint([
    Sketcher.Constraint("Vertical", 0),
    Sketcher.Constraint("Horizontal", 1),
    Sketcher.Constraint("Vertical", 2),
    Sketcher.Constraint("Horizontal", 3),
    Sketcher.Constraint("Vertical", 4),
    Sketcher.Constraint("Horizontal", 5),
    Sketcher.Constraint("Vertical", 6),
    Sketcher.Constraint("Horizontal", 7),
    Sketcher.Constraint("Vertical", 8),
    Sketcher.Constraint("Horizontal", 9),
    Sketcher.Constraint("Vertical", 10),
    Sketcher.Constraint("Horizontal", 11),
    Sketcher.Constraint("Vertical", 12),
    Sketcher.Constraint("Horizontal", 13),
    Sketcher.Constraint("Vertical", 14),
    Sketcher.Constraint("Horizontal", 15),
    Sketcher.Constraint("Symmetric", 2, 2, 4, 2, -1, 1),
    Sketcher.Constraint("Symmetric", 0, 2, 6, 2, -1, 1),
    Sketcher.Constraint("Symmetric", 10, 2, 12, 2, -1, 1),
    Sketcher.Constraint("Symmetric", 8, 2, 14, 2, -1, 1),
    Sketcher.Constraint("Horizontal", 9, 2, 12, 2),
    Sketcher.Constraint("Vertical", 3, 2, 4, 2),
    Sketcher.Constraint("Equal", 15, 0),
    Sketcher.Constraint("Equal", 7, 8),
    Sketcher.Constraint("DistanceX", 1, 1, 1, 2, Q("90 mm")),
    Sketcher.Constraint("DistanceX", 9, 1, 9, 2, Q("5.2 mm")),
    Sketcher.Constraint("DistanceY", 0, 2, -1, 1, Q("53 mm")),
    Sketcher.Constraint("DistanceX", 8, 2, -1, 1, Q("53 mm")),
])
pocket9 = body.newObject("PartDesign::Pocket", "Pocket008")
pocket9.Profile = sketch11
pocket9.Length = 0.001

sketch12 = body.newObject("Sketcher::SketchObject", "Sketch011")
sketch12.AttachmentSupport = (doc.getObject("XY_Plane"), [""])
sketch12.MapMode = "FlatFace"
sketch12.addGeometry([
    Part.LineSegment(V(19, -39, 0), V(3, -23, 0)),
    Part.LineSegment(V(3, -23, 0), V(-3, -23, 0)),
    Part.LineSegment(V(-3, -23, 0), V(-19, -39, 0)),
    Part.ArcOfCircle(Part.Circle(V(-18, -18, 0), V(0, 0, 1), 22), math.radians(-176), math.radians(-94)),
    Part.LineSegment(V(-39, -19, 0), V(-23, -3, 0)),
    Part.LineSegment(V(-23, -3, 0), V(-23, 3, 0)),
    Part.LineSegment(V(-23, 3, 0), V(-39, 19, 0)),
    Part.ArcOfCircle(Part.Circle(V(-18, 18, 0), V(0, 0, 1), 22), math.radians(94), math.radians(176)),
    Part.LineSegment(V(-19, 39, 0), V(-3, 23, 0)),
    Part.LineSegment(V(-3, 23, 0), V(3, 23, 0)),
    Part.LineSegment(V(3, 23, 0), V(19, 39, 0)),
    Part.ArcOfCircle(Part.Circle(V(18, 18, 0), V(0, 0, 1), 22), math.radians(4), math.radians(86)),
    Part.LineSegment(V(39, 19, 0), V(23, 3, 0)),
    Part.LineSegment(V(23, 3, 0), V(23, -3, 0)),
    Part.LineSegment(V(23, -3, 0), V(39, -19, 0)),
    Part.ArcOfCircle(Part.Circle(V(18, -18, 0), V(0, 0, 1), 22), math.radians(-86), math.radians(-4)),
], False)
sketch12.addConstraint([
    Sketcher.Constraint("Coincident", 0, 2, 1, 1),
    Sketcher.Constraint("Coincident", 1, 2, 2, 1),
    Sketcher.Constraint("Coincident", 2, 2, 3, 2),
    Sketcher.Constraint("Coincident", 3, 1, 4, 1),
    Sketcher.Constraint("Coincident", 4, 2, 5, 1),
    Sketcher.Constraint("Coincident", 5, 2, 6, 1),
    Sketcher.Constraint("Coincident", 6, 2, 7, 2),
    Sketcher.Constraint("Coincident", 7, 1, 8, 1),
    Sketcher.Constraint("Coincident", 8, 2, 9, 1),
    Sketcher.Constraint("Coincident", 9, 2, 10, 1),
    Sketcher.Constraint("Coincident", 10, 2, 11, 2),
    Sketcher.Constraint("Coincident", 11, 1, 12, 1),
    Sketcher.Constraint("Coincident", 12, 2, 13, 1),
    Sketcher.Constraint("Coincident", 13, 2, 14, 1),
    Sketcher.Constraint("Coincident", 14, 2, 15, 2),
    Sketcher.Constraint("Coincident", 15, 1, 0, 1),
    Sketcher.Constraint("Horizontal", 1),
    Sketcher.Constraint("Vertical", 5),
    Sketcher.Constraint("Horizontal", 9),
    Sketcher.Constraint("Vertical", 13),
    Sketcher.Constraint("Equal", 3, 7),
    Sketcher.Constraint("Equal", 7, 11),
    Sketcher.Constraint("Equal", 11, 15),
    Sketcher.Constraint("Symmetric", 3, 3, 11, 3, -1, 1),
    Sketcher.Constraint("Symmetric", 7, 3, 15, 3, -1, 1),
    Sketcher.Constraint("Symmetric", 0, 2, 8, 2, -1, 1),
    Sketcher.Constraint("Symmetric", 4, 2, 12, 2, -1, 1),
    Sketcher.Constraint("Symmetric", 7, 3, 11, 3, -2),
    Sketcher.Constraint("Perpendicular", 0, 2),
    Sketcher.Constraint("Parallel", 2, 4),
    Sketcher.Constraint("Perpendicular", 4, 6),
    Sketcher.Constraint("Parallel", 6, 8),
    Sketcher.Constraint("Perpendicular", 8, 10),
    Sketcher.Constraint("Parallel", 10, 12),
    Sketcher.Constraint("Perpendicular", 12, 14),
    Sketcher.Constraint("Horizontal", 7, 1, 10, 2),
    Sketcher.Constraint("Horizontal", 6, 2, 11, 1),
    Sketcher.Constraint("Horizontal", 5, 2, 12, 2),
    Sketcher.Constraint("Horizontal", 4, 2, 13, 2),
    Sketcher.Constraint("Horizontal", 2, 2, 15, 1),
    Sketcher.Constraint("Equal", 9, 5),
    Sketcher.Constraint("Equal", 2, 4),
    Sketcher.Constraint("DistanceX", 1, 2, 1, 1, Q("5.5 mm")),
    Sketcher.Constraint("Radius", 3, Q("21.8066 mm")),
    Sketcher.Constraint("Distance", 0, Q("22.882 mm")),
    Sketcher.Constraint("DistanceX", 3, 3, -1, 1, Q("17.566141 mm")),
    Sketcher.Constraint("DistanceY", 3, 3, -1, 1, Q("17.566141 mm")),
])
pocket10 = body.newObject("PartDesign::Pocket", "Pocket009")
pocket10.Profile = sketch12
pocket10.Length = 10
pocket10.Reversed = True

sketch13 = body.newObject("Sketcher::SketchObject", "Sketch012")
sketch13.AttachmentSupport = (doc.getObject("XY_Plane"), [""])
sketch13.MapMode = "FlatFace"
sketch13.addGeometry([
    Part.Circle(V(-34.3, -42.5, 0), V(0, 0, 1), 0.8),
    Part.Circle(V(-23.5, -42.5, 0), V(0, 0, 1), 0.8),
], False)
sketch13.addConstraint([
    Sketcher.Constraint("Equal", 0, 1),
    Sketcher.Constraint("Horizontal", 0, 3, 1, 3),
    Sketcher.Constraint("Diameter", 0, Q("1.6 mm")),
    Sketcher.Constraint("DistanceY", 0, 3, -1, 1, Q("42.5 mm")),
    Sketcher.Constraint("DistanceX", 0, 3, 1, 3, Q("10.77 mm")),
    Sketcher.Constraint("DistanceX", 0, 3, -1, 1, Q("34.285 mm")),
])
pocket11 = body.newObject("PartDesign::Pocket", "Pocket010")
pocket11.Profile = sketch13
pocket11.Length = 10
pocket11.Reversed = True

sketch14 = body.newObject("Sketcher::SketchObject", "Sketch013")
sketch14.AttachmentSupport = (doc.getObject("XY_Plane"), [""])
sketch14.MapMode = "FlatFace"
add_polygon(sketch14, [(63, 63), (63, -63), (-63, -63), (-63, 63)])
add_polygon(sketch14, [(-53, -53), (53, -53), (53, 53), (-53, 53)])
sketch14.addConstraint([
    Sketcher.Constraint("Vertical", 0),
    Sketcher.Constraint("Horizontal", 1),
    Sketcher.Constraint("Vertical", 2),
    Sketcher.Constraint("Horizontal", 3),
    Sketcher.Constraint("Horizontal", 4),
    Sketcher.Constraint("Vertical", 5),
    Sketcher.Constraint("Horizontal", 6),
    Sketcher.Constraint("Vertical", 7),
    Sketcher.Constraint("Symmetric", 0, 2, 2, 2, -1, 1),
    Sketcher.Constraint("Symmetric", 4, 2, 6, 2, -1, 1),
    Sketcher.Constraint("Equal", 3, 0),
    Sketcher.Constraint("Equal", 6, 5),
    Sketcher.Constraint("DistanceX", 1, 2, 1, 1, Q("125.6 mm")),
    Sketcher.Constraint("DistanceX", 4, 1, 4, 2, Q("105.6 mm")),
])
pocket12 = body.newObject("PartDesign::Pocket", "Pocket011")
pocket12.Profile = sketch14
pocket12.Type = "ThroughAll"
pocket12.Midplane = True
doc.recompute()

fillet2 = body.newObject("PartDesign::Fillet", "Fillet001")
fillet2.Base = (pocket12, edges_at(pocket12, [
    (-52.8, 39.028, 0.799),
    (39.128, -52.8, 0.799),
    (52.8, -39.028, 0.799),
    (-39.128, 52.8, 0.799),
    (-52.8, -39.028, 0.799),
    (-39.128, -52.8, 0.799),
    (52.8, 39.028, 0.799),
    (39.128, 52.8, 0.799),
]))
fillet2.Radius = 0.5

doc.recompute()
